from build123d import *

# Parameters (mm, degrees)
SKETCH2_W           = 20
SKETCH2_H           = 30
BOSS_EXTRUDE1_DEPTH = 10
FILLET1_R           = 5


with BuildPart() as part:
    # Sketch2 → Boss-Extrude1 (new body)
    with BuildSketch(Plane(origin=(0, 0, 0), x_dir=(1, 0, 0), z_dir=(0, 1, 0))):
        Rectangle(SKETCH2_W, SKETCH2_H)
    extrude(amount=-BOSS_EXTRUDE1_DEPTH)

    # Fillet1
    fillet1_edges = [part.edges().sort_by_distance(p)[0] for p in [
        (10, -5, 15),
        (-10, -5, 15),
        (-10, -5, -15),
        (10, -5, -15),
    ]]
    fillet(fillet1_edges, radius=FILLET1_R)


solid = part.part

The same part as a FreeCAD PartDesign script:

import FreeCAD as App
import Part
import Sketcher
Q = App.Units.Quantity


def edges_at(feature, points):
    """Names of the edges that pass closest to the given points."""
    edges = feature.Shape.Edges
    near = lambda p: min(range(len(edges)), key=lambda i: edges[i].distToShape(Part.Vertex(*p))[0])
    return sorted({f"Edge{near(p) + 1}" for p in points})


def add_polygon(sketch, points):
    """Adds a closed chain of lines whose ends are joined by coincident constraints."""
    first, n = sketch.GeometryCount, len(points)
    for a, b in zip(points, points[1:] + points[:1]):
        sketch.addGeometry(Part.LineSegment(App.Vector(*a, 0), App.Vector(*b, 0)), False)
    for i in range(n):
        sketch.addConstraint(Sketcher.Constraint("Coincident", first + i, 2, first + (i + 1) % n, 1))

doc = App.newDocument("Part")
body = doc.addObject("PartDesign::Body", "Body")

# Sketch on XZ plane
sketch1 = body.newObject("Sketcher::SketchObject", "Sketch")
sketch1.AttachmentSupport = (doc.getObject("XZ_Plane"), [""])
sketch1.MapMode = "FlatFace"
add_polygon(sketch1, [(-10, -15), (-10, 15), (10, 15), (10, -15)])  # lines 0-3
sketch1.addConstraint([
    Sketcher.Constraint("Vertical", 0),
    Sketcher.Constraint("Horizontal", 1),
    Sketcher.Constraint("Vertical", 2),
    Sketcher.Constraint("Horizontal", 3),
    Sketcher.Constraint("Symmetric", 0, 2, 2, 2, -1, 1),
    Sketcher.Constraint("DistanceX", 1, 1, 1, 2, Q("20 mm")),
    Sketcher.Constraint("DistanceY", 0, 1, 0, 2, Q("30 mm")),
])
pad1 = body.newObject("PartDesign::Pad", "Pad")
pad1.Profile = sketch1
pad1.Length = 10
doc.recompute()

fillet = body.newObject("PartDesign::Fillet", "Fillet")
fillet.Base = (pad1, edges_at(pad1, [
    (10, -5, 15),
    (-10, -5, 15),
    (-10, -5, -15),
    (10, -5, -15),
]))
fillet.Radius = 5

doc.recompute()
